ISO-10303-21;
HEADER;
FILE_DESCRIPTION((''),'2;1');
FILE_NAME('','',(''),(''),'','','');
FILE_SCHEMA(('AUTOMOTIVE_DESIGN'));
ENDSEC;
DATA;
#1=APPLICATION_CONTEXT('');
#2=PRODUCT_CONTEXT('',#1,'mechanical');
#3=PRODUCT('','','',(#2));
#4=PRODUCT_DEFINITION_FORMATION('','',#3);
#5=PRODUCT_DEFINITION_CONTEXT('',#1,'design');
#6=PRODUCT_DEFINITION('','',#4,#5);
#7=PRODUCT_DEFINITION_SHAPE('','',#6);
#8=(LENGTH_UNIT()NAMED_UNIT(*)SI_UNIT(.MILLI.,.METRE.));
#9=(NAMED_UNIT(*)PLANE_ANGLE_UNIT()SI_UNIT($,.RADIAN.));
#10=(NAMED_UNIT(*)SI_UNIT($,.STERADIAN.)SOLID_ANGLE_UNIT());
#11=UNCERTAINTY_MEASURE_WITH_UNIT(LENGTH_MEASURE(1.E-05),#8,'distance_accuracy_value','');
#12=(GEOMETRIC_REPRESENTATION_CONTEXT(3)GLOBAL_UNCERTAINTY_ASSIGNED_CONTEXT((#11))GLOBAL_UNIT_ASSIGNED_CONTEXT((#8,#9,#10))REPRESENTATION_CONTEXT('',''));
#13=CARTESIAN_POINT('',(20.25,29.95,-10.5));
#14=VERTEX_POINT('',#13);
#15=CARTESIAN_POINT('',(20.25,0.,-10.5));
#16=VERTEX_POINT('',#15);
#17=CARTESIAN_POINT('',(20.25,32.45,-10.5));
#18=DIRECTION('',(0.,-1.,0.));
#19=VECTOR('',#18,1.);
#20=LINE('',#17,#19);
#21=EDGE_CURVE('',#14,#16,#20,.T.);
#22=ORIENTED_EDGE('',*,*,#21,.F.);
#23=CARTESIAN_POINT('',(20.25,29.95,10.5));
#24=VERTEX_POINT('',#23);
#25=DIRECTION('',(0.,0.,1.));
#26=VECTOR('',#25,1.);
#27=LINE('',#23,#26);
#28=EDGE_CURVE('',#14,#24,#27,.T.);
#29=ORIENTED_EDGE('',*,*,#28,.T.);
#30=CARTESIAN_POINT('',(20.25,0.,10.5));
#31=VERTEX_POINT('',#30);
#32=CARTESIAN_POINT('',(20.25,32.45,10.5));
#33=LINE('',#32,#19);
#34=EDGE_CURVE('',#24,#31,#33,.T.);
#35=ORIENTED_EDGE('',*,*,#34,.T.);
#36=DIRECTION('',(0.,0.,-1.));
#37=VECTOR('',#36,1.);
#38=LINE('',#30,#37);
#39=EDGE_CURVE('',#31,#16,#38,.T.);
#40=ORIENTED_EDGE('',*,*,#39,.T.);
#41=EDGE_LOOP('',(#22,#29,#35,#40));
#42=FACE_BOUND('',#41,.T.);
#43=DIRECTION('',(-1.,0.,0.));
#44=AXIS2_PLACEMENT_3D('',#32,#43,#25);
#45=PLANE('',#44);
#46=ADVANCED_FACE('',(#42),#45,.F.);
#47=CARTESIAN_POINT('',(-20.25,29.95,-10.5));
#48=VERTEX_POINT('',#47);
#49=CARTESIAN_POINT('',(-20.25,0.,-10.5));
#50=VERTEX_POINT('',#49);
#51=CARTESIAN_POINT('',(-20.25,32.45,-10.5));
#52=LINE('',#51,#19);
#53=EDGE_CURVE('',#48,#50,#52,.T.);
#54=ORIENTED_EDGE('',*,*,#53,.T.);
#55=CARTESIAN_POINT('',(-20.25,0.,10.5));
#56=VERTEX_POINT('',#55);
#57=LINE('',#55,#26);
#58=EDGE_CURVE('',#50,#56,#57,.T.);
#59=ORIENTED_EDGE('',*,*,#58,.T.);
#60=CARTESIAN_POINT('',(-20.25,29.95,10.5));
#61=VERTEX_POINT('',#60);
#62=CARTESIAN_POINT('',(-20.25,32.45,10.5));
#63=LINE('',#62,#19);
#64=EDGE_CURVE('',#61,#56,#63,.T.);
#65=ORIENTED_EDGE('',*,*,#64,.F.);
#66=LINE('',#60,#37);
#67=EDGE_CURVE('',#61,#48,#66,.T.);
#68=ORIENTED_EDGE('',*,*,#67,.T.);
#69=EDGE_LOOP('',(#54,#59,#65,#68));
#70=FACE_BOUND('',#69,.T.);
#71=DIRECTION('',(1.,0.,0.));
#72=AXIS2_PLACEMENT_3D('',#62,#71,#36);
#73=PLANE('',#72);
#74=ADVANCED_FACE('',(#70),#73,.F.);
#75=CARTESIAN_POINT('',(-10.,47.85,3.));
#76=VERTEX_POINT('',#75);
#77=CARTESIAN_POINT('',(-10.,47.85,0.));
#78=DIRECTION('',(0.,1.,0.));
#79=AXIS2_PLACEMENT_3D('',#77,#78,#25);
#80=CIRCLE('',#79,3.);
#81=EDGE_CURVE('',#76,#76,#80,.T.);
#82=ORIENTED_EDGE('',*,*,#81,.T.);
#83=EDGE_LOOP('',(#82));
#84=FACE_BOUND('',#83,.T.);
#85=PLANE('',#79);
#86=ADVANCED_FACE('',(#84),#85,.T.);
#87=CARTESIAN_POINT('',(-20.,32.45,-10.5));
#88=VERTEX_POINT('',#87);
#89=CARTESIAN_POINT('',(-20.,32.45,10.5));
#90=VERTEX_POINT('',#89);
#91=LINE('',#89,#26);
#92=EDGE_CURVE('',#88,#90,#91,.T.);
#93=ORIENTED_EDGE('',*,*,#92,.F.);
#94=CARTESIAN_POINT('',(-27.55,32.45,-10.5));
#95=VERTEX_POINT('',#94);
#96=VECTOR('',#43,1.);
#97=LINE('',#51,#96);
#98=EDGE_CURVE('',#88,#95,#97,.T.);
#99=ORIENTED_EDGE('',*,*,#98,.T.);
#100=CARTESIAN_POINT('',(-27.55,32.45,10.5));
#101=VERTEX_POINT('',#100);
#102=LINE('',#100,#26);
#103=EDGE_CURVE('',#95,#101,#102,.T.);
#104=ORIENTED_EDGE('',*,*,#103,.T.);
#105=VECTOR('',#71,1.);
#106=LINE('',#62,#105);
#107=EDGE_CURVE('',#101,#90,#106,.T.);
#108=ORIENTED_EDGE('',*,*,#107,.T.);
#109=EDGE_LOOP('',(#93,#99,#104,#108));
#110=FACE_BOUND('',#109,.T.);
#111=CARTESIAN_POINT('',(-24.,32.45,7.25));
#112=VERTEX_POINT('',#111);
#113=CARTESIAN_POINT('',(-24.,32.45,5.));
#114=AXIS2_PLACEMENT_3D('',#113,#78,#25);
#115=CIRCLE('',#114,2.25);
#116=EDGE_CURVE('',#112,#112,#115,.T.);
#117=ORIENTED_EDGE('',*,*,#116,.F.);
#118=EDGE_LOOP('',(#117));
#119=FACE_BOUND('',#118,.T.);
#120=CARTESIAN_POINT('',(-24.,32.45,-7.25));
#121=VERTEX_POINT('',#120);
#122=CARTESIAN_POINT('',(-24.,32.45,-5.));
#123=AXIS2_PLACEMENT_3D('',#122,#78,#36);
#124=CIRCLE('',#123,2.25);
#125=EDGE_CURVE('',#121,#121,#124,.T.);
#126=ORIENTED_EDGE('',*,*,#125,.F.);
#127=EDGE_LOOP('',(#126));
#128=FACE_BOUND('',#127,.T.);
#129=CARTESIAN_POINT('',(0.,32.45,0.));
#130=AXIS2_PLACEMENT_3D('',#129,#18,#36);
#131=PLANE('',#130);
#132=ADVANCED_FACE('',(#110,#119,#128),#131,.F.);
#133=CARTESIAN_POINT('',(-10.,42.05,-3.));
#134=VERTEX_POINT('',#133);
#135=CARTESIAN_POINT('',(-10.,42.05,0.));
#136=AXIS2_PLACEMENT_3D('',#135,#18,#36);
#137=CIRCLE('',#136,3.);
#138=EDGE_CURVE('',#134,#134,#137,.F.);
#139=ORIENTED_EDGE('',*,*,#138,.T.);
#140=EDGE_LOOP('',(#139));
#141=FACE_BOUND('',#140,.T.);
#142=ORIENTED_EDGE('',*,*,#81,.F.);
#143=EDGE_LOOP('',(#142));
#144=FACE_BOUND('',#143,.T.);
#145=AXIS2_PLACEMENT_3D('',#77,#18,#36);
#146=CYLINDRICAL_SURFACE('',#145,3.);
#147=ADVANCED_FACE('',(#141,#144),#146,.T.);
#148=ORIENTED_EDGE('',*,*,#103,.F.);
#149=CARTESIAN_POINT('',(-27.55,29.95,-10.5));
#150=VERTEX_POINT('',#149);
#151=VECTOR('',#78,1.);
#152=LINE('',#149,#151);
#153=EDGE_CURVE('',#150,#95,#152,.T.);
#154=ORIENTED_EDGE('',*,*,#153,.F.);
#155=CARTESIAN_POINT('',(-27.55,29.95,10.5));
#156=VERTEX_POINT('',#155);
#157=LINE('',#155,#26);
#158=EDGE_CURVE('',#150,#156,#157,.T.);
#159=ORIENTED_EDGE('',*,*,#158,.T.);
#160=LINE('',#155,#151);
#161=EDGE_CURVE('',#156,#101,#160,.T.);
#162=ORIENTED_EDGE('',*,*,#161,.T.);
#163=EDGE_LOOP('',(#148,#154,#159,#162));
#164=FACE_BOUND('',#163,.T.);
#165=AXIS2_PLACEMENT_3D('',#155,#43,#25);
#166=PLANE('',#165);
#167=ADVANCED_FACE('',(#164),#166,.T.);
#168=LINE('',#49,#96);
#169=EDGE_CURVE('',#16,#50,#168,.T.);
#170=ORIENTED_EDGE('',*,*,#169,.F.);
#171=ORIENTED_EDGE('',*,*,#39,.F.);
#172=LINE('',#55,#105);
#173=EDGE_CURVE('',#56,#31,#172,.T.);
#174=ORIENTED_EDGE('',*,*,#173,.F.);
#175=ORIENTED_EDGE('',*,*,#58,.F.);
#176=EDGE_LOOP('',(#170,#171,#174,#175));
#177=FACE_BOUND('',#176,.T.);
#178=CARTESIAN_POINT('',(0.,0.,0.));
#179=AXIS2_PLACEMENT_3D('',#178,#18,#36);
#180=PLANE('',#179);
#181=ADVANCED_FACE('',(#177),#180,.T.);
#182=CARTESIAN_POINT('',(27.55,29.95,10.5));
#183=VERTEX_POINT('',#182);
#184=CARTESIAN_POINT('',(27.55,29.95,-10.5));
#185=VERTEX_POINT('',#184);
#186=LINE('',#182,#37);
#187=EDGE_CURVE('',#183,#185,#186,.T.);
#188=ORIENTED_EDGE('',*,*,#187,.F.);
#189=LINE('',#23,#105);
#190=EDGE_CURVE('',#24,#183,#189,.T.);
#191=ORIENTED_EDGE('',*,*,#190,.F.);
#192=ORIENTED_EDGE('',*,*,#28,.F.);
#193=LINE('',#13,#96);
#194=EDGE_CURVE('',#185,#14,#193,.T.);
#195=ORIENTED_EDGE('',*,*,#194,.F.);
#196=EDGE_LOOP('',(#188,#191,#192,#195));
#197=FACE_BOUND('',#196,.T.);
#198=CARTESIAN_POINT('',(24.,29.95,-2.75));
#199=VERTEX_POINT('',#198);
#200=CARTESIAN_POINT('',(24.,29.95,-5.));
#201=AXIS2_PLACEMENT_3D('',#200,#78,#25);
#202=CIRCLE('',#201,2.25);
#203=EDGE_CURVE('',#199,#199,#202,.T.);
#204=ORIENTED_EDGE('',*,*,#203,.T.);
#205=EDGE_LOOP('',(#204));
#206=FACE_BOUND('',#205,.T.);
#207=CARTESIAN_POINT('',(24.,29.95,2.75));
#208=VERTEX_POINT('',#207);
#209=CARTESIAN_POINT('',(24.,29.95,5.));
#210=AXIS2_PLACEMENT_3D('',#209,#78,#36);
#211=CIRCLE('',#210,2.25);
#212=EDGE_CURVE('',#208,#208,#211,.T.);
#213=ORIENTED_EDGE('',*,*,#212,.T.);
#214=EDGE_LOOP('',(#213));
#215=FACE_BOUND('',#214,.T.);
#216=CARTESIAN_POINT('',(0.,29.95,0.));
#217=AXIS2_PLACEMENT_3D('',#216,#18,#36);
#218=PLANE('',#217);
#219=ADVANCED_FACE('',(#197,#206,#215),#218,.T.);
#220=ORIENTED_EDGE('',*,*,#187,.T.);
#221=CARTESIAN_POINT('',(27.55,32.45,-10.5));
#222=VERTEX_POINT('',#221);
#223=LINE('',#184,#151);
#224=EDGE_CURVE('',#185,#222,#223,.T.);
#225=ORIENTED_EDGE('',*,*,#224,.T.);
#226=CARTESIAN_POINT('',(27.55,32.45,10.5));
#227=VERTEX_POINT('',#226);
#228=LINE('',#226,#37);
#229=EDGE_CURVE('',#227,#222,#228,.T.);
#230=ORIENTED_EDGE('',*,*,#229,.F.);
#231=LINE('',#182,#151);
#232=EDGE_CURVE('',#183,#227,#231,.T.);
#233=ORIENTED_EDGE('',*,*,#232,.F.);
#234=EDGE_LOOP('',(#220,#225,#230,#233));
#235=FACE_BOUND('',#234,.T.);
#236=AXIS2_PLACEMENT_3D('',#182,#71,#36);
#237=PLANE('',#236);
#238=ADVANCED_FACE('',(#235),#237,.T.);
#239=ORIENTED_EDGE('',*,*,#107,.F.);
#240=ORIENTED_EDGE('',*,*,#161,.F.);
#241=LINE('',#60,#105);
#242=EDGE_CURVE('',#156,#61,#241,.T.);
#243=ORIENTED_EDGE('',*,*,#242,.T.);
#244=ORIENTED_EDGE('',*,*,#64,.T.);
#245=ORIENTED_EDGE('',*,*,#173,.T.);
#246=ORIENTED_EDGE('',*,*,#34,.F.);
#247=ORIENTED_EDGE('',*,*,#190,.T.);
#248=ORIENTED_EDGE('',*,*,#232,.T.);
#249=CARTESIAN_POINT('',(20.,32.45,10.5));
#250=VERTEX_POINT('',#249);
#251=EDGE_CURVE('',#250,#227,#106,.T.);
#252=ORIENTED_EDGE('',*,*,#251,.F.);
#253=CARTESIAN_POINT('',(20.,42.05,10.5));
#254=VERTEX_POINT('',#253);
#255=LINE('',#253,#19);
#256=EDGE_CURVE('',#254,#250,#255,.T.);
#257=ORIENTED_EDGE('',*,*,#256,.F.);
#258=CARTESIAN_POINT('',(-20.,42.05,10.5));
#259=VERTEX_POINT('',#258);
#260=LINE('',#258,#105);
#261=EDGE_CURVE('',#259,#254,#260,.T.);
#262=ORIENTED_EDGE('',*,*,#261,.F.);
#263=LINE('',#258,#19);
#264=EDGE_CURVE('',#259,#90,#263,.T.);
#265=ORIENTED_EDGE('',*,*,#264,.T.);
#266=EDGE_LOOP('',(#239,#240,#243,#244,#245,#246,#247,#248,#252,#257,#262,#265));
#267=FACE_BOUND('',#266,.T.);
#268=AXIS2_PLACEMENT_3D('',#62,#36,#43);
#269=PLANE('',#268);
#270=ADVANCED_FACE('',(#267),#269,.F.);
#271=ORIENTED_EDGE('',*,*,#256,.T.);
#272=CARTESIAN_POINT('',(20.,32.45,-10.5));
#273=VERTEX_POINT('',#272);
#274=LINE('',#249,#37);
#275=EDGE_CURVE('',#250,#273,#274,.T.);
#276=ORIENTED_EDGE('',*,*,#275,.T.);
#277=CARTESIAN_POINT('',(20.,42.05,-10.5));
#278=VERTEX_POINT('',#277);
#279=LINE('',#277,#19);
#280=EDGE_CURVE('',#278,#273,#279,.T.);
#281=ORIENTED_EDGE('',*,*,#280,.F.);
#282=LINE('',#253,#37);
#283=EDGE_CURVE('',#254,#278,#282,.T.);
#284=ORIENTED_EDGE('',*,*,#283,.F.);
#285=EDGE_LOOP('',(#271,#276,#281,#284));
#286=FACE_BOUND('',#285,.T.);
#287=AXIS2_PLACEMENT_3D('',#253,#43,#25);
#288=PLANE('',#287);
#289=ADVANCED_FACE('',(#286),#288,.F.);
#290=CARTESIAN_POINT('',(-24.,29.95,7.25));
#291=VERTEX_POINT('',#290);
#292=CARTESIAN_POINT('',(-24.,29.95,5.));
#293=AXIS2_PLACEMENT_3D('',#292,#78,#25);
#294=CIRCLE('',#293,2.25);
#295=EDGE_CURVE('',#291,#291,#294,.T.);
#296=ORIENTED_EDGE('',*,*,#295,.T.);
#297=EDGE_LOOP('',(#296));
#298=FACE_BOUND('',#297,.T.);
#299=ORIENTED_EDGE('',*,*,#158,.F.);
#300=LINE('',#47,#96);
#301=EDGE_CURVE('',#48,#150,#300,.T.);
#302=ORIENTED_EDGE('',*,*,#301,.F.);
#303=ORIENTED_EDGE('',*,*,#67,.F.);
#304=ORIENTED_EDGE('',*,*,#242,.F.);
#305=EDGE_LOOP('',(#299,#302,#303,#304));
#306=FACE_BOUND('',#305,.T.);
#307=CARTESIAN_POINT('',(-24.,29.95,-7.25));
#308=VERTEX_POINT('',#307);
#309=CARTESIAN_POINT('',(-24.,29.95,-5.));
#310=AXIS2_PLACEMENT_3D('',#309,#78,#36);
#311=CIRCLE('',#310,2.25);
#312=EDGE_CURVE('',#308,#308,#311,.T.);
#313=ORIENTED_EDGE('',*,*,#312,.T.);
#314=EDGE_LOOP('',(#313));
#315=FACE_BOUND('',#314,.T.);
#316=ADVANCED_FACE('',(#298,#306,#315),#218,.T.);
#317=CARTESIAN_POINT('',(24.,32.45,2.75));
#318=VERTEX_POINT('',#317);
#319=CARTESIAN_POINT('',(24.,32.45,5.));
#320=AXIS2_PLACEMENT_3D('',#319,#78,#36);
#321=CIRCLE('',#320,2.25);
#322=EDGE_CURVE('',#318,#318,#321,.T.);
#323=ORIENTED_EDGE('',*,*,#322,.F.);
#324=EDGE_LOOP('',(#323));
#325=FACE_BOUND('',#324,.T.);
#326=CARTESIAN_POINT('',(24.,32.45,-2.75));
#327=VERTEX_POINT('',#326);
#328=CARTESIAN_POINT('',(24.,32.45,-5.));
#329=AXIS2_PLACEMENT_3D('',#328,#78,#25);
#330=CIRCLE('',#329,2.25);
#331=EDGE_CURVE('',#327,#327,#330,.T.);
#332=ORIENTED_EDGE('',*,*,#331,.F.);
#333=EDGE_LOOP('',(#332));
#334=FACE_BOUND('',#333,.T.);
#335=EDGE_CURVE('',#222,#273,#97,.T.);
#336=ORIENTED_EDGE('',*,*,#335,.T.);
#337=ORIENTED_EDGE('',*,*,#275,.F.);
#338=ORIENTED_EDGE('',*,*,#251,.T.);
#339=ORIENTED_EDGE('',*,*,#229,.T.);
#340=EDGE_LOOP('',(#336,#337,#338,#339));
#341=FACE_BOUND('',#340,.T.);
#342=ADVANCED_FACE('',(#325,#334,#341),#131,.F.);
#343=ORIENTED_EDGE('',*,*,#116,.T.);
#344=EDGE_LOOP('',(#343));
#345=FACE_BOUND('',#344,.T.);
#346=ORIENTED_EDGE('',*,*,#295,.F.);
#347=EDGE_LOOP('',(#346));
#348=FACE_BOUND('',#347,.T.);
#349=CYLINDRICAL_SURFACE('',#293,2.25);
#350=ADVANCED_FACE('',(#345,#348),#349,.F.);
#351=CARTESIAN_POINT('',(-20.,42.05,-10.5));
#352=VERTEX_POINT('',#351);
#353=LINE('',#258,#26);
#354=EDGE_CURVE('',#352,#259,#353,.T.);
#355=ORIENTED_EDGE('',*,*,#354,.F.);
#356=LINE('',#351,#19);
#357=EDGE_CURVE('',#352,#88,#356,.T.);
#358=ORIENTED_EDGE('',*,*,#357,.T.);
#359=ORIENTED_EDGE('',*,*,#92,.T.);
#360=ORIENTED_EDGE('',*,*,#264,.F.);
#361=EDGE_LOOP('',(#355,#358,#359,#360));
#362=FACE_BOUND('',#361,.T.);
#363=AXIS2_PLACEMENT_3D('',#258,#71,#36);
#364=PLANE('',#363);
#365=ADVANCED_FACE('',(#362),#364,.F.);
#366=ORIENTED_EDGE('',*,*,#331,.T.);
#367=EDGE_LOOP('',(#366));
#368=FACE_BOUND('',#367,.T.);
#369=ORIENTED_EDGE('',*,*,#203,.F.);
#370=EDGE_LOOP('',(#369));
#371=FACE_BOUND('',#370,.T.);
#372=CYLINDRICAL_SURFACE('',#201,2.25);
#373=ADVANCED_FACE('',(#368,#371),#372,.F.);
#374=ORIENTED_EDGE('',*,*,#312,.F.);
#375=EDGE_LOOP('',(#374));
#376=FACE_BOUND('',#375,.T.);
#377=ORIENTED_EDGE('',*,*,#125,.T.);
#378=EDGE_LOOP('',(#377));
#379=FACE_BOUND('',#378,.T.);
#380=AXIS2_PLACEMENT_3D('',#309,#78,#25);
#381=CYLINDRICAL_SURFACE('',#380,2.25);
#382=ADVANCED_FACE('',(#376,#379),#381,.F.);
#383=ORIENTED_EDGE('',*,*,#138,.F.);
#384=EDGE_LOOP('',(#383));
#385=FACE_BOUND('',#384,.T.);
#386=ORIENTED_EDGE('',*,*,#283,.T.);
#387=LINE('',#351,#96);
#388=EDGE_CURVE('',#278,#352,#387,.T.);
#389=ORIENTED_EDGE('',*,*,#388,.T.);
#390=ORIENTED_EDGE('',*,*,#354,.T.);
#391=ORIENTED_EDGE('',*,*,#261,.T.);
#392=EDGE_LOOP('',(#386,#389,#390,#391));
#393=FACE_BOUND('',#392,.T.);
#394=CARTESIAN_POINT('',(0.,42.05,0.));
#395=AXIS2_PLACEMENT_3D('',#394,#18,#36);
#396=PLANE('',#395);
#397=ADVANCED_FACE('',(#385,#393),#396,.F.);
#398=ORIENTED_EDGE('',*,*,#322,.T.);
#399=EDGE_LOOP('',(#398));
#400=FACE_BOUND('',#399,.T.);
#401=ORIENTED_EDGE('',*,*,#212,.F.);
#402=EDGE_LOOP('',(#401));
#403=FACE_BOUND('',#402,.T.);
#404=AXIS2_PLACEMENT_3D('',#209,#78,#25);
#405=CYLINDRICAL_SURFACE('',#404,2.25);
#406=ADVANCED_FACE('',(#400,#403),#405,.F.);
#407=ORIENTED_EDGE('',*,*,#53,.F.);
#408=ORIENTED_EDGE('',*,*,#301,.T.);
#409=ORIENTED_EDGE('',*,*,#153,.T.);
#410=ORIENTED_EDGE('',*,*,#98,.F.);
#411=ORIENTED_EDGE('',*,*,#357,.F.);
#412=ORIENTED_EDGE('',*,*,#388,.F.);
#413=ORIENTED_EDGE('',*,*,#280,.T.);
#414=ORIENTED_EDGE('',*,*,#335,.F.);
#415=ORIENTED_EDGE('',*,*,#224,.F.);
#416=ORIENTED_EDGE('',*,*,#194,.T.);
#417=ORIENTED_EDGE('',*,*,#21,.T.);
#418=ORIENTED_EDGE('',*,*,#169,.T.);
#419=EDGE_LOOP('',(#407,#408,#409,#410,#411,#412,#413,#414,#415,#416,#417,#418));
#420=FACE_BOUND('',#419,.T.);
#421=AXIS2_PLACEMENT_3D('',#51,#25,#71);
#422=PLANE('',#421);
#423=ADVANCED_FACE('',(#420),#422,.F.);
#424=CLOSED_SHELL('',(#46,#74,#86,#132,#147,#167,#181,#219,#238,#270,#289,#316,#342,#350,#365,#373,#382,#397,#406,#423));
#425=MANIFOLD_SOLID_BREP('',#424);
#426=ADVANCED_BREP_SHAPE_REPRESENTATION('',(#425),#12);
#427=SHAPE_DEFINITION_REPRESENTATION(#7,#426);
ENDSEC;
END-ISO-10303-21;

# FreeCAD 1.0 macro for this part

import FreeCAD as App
import Part
import Sketcher
from FreeCAD import Vector


def add_polygon(sketch, points):
    """Adds a closed chain of lines whose ends are joined by coincident constraints."""
    first, n = sketch.GeometryCount, len(points)
    for a, b in zip(points, points[1:] + points[:1]):
        sketch.addGeometry(Part.LineSegment(App.Vector(*a, 0), App.Vector(*b, 0)), False)
    for i in range(n):
        sketch.addConstraint(Sketcher.Constraint("Coincident", first + i, 2, first + (i + 1) % n, 1))

doc = App.newDocument("Part")
body = doc.addObject("PartDesign::Body", "Body")

sketch1 = body.newObject("Sketcher::SketchObject", "Sketch")
sketch1.AttachmentSupport = (doc.getObject("XZ_Plane"), [""])
sketch1.MapMode = "FlatFace"
add_polygon(sketch1, [(-20, -10), (-20, 10), (20, 10), (20, -10)])
sketch1.addConstraint(Sketcher.Constraint("Vertical", 0))
sketch1.addConstraint(Sketcher.Constraint("Horizontal", 1))
sketch1.addConstraint(Sketcher.Constraint("Vertical", 2))
sketch1.addConstraint(Sketcher.Constraint("Horizontal", 3))
sketch1.addConstraint(Sketcher.Constraint("Symmetric", 0, 2, 2, 2, -1, 1))
sketch1.addConstraint(Sketcher.Constraint("DistanceY", 0, 1, 0, 2, 21.0))
sketch1.addConstraint(Sketcher.Constraint("DistanceX", 1, 1, 1, 2, 40.5))
pad1 = body.newObject("PartDesign::Pad", "Pad")
pad1.Profile = sketch1
pad1.Length = 32.45
pad1.Reversed = True

sketch2 = body.newObject("Sketcher::SketchObject", "Sketch001")
sketch2.AttachmentSupport = (doc.getObject("XZ_Plane"), [""])
sketch2.MapMode = "FlatFace"
sketch2.AttachmentOffset = App.Placement(Vector(0, 0, -32.45), App.Rotation())
add_polygon(sketch2, [(20.2, -10.5), (20.2, 10.5), (27.6, 10.5), (27.6, -10.5)])
sketch2.addGeometry(Part.Circle(Vector(24, 5, 0), Vector(0, 0, 1), 2.2), False)
sketch2.addGeometry(Part.Circle(Vector(24, -5, 0), Vector(0, 0, 1), 2.2), False)
add_polygon(sketch2, [(-27.6, -10.5), (-27.6, 10.5), (-20.2, 10.5), (-20.2, -10.5)])
sketch2.addGeometry(Part.Circle(Vector(-24, 5, 0), Vector(0, 0, 1), 2.2), False)
sketch2.addGeometry(Part.Circle(Vector(-24, -5, 0), Vector(0, 0, 1), 2.2), False)
sketch2.addConstraint(Sketcher.Constraint("Vertical", 0))
sketch2.addConstraint(Sketcher.Constraint("Horizontal", 1))
sketch2.addConstraint(Sketcher.Constraint("Vertical", 2))
sketch2.addConstraint(Sketcher.Constraint("Horizontal", 3))
sketch2.addConstraint(Sketcher.Constraint("Vertical", 6))
sketch2.addConstraint(Sketcher.Constraint("Horizontal", 7))
sketch2.addConstraint(Sketcher.Constraint("Vertical", 8))
sketch2.addConstraint(Sketcher.Constraint("Horizontal", 9))
sketch2.addConstraint(Sketcher.Constraint("Equal", 4, 5))
sketch2.addConstraint(Sketcher.Constraint("Equal", 5, 10))
sketch2.addConstraint(Sketcher.Constraint("Equal", 10, 11))
sketch2.addConstraint(Sketcher.Constraint("Symmetric", 5, 3, 10, 3, -1, 1))
sketch2.addConstraint(Sketcher.Constraint("Symmetric", 4, 3, 11, 3, -1, 1))
sketch2.addConstraint(Sketcher.Constraint("Symmetric", 2, 2, 6, 2, -1, 1))
sketch2.addConstraint(Sketcher.Constraint("Symmetric", 0, 2, 8, 2, -1, 1))
sketch2.addConstraint(Sketcher.Constraint("Symmetric", 4, 3, 10, 3, -2))
sketch2.addConstraint(Sketcher.Constraint("Horizontal", 1, 2, 6, 2))
sketch2.addConstraint(Sketcher.Constraint("Diameter", 4, 4.5))
sketch2.addConstraint(Sketcher.Constraint("DistanceY", 0, 1, 0, 2, 21.0))
sketch2.addConstraint(Sketcher.Constraint("DistanceX", 1, 1, 1, 2, 7.3))
sketch2.addConstraint(Sketcher.Constraint("DistanceX", -1, 1, 4, 3, 24.0))
sketch2.addConstraint(Sketcher.Constraint("DistanceY", -1, 1, 4, 3, 5.0))
sketch2.addConstraint(Sketcher.Constraint("DistanceX", 6, 2, 0, 2, 47.8))
pad2 = body.newObject("PartDesign::Pad", "Pad001")
pad2.Profile = sketch2
pad2.Length = 2.5

sketch3 = body.newObject("Sketcher::SketchObject", "Sketch002")
sketch3.AttachmentSupport = (doc.getObject("XZ_Plane"), [""])
sketch3.MapMode = "FlatFace"
sketch3.AttachmentOffset = App.Placement(Vector(0, 0, -32.45), App.Rotation())
add_polygon(sketch3, [(-20, -10), (-20, 10), (20, 10), (20, -10)])
sketch3.addConstraint(Sketcher.Constraint("Vertical", 0))
sketch3.addConstraint(Sketcher.Constraint("Horizontal", 1))
sketch3.addConstraint(Sketcher.Constraint("Vertical", 2))
sketch3.addConstraint(Sketcher.Constraint("Horizontal", 3))
sketch3.addConstraint(Sketcher.Constraint("Symmetric", 0, 2, 2, 2, -1, 1))
sketch3.addConstraint(Sketcher.Constraint("DistanceX", 1, 1, 1, 2, 40.0))
sketch3.addConstraint(Sketcher.Constraint("DistanceY", 0, 1, 0, 2, 21.0))
pad3 = body.newObject("PartDesign::Pad", "Pad002")
pad3.Profile = sketch3
pad3.Length = 9.6
pad3.Reversed = True

sketch4 = body.newObject("Sketcher::SketchObject", "Sketch003")
sketch4.AttachmentSupport = (doc.getObject("XZ_Plane"), [""])
sketch4.MapMode = "FlatFace"
sketch4.AttachmentOffset = App.Placement(Vector(0, 0, -42.05), App.Rotation())
sketch4.addGeometry(Part.Circle(Vector(-10, 0, 0), Vector(0, 0, 1), 3), False)
sketch4.addConstraint(Sketcher.Constraint("PointOnObject", 0, 3, -1))
sketch4.addConstraint(Sketcher.Constraint("Diameter", 0, 6.0))
sketch4.addConstraint(Sketcher.Constraint("DistanceX", 0, 3, -1, 1, 10.0))
pad4 = body.newObject("PartDesign::Pad", "Pad003")
pad4.Profile = sketch4
pad4.Length = 5.8
pad4.Reversed = True

doc.recompute()
